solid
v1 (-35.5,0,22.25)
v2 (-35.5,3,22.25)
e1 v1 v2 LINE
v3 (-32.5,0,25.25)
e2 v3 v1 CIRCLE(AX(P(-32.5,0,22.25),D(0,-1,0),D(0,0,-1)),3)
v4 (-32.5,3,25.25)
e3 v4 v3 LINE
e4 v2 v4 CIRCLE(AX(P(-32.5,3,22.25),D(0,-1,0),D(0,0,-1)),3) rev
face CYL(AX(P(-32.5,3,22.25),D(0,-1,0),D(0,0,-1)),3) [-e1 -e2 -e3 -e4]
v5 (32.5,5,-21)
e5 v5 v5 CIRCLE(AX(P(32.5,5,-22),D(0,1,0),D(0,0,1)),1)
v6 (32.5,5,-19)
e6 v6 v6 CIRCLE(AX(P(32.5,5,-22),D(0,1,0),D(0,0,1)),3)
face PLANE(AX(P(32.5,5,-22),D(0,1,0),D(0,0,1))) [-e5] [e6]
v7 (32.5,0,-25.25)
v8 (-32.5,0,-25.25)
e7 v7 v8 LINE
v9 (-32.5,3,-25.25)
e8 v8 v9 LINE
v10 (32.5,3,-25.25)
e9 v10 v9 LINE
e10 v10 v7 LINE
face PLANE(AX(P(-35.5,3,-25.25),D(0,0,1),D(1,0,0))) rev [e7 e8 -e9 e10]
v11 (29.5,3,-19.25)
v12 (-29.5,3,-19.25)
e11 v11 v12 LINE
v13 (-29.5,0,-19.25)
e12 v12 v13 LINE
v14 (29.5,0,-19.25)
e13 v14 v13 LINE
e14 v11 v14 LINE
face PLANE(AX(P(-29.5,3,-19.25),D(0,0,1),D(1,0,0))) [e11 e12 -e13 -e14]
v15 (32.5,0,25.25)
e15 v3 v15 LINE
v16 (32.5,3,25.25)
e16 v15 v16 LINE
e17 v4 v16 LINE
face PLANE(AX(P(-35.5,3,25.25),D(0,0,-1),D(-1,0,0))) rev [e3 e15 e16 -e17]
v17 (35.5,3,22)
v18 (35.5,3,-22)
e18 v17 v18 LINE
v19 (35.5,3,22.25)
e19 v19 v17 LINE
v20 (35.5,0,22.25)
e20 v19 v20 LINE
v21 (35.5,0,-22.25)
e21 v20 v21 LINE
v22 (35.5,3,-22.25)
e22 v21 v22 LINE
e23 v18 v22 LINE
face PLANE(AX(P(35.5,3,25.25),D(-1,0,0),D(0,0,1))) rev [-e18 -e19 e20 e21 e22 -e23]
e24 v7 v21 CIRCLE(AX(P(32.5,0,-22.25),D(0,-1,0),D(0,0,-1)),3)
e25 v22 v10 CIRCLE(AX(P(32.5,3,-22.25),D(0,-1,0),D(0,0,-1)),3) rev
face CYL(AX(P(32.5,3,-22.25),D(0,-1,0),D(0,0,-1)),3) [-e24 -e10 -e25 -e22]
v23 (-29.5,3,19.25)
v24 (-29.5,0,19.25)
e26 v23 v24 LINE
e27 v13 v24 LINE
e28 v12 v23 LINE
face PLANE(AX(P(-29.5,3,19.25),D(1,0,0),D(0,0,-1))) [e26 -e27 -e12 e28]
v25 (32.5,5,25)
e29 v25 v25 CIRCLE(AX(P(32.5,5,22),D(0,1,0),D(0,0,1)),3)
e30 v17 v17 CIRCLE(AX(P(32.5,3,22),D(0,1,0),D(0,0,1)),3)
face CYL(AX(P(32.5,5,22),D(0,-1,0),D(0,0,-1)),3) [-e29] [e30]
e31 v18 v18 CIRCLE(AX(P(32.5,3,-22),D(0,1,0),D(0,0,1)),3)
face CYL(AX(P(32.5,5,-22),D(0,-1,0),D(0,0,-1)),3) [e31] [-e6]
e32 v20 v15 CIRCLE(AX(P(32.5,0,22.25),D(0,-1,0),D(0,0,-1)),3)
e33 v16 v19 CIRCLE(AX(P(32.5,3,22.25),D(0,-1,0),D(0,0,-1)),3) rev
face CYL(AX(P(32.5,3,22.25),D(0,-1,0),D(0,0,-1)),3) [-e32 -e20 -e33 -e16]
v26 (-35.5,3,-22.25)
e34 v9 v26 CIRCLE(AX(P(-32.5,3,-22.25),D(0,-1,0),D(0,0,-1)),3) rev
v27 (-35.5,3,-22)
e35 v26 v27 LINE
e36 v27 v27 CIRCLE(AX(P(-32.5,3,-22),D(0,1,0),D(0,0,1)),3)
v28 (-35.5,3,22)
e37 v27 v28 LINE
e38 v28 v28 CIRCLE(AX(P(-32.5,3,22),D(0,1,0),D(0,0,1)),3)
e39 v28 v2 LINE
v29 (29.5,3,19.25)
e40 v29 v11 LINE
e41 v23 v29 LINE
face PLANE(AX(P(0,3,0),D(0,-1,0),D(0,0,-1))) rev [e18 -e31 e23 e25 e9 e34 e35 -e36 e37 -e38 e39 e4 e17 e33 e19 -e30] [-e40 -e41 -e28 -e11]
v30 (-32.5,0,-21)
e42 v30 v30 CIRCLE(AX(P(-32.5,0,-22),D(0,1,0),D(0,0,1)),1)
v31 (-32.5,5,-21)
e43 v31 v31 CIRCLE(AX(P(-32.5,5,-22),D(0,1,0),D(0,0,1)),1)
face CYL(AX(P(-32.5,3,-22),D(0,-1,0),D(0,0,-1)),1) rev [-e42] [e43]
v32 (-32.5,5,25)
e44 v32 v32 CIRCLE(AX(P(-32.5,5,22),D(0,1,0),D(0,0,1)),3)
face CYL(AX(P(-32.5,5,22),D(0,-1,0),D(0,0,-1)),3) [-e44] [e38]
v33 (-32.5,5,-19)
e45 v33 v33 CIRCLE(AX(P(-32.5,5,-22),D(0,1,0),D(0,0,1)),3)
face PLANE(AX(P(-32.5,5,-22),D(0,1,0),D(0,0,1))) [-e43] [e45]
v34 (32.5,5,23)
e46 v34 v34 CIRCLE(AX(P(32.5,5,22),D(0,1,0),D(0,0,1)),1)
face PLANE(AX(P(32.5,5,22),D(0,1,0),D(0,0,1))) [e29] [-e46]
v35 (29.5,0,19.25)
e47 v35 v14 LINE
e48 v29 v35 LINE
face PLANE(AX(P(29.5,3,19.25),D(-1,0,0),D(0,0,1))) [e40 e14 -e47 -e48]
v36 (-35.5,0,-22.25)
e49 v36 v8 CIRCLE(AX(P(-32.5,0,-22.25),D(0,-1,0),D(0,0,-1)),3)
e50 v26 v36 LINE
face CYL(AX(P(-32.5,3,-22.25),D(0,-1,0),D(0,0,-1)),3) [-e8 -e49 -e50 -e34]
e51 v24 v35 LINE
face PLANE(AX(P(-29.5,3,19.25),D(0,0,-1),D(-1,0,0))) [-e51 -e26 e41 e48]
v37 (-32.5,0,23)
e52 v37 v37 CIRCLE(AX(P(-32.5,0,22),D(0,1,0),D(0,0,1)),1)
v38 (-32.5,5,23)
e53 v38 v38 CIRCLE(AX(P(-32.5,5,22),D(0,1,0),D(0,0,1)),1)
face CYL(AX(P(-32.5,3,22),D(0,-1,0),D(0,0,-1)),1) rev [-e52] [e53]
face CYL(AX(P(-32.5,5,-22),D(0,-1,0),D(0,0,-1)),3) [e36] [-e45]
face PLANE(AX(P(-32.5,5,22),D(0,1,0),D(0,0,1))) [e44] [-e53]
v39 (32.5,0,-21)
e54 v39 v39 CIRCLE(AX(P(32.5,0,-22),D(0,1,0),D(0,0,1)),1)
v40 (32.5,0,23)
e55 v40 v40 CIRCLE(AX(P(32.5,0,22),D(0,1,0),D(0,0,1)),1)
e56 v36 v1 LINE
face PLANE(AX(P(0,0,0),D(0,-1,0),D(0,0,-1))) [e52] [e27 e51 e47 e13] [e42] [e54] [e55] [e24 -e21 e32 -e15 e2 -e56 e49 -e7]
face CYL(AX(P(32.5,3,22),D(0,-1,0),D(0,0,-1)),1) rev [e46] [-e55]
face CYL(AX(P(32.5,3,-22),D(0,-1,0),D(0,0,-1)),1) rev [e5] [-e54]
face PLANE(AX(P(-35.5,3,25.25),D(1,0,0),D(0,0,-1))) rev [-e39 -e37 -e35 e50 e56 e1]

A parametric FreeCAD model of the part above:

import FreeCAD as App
import Part
import Sketcher

V = App.Vector


def edges_at(feature, points):
    """Names of the edges that pass closest to the given points."""
    edges = feature.Shape.Edges
    near = lambda p: min(range(len(edges)), key=lambda i: edges[i].distToShape(Part.Vertex(*p))[0])
    return sorted({f"Edge{near(p) + 1}" for p in points})

doc = App.newDocument("Part")
body = doc.addObject("PartDesign::Body", "Body")

# Sketch on XZ plane
sketch1 = body.newObject("Sketcher::SketchObject", "Sketch")
sketch1.AttachmentSupport = (doc.getObject("XZ_Plane"), [""])
sketch1.MapMode = "FlatFace"
sketch1.addGeometry([
    Part.LineSegment(V(-35.5, -25.25, 0), V(-35.5, 25.25, 0)),  # 0
    Part.LineSegment(V(-35.5, 25.25, 0), V(35.5, 25.25, 0)),  # 1
    Part.LineSegment(V(35.5, 25.25, 0), V(35.5, -25.25, 0)),  # 2
    Part.LineSegment(V(35.5, -25.25, 0), V(-35.5, -25.25, 0)),  # 3
    Part.Circle(V(-32.5, 22, 0), V(0, 0, 1), 1),  # 4
    Part.Circle(V(32.5, 22, 0), V(0, 0, 1), 1),  # 5
    Part.Circle(V(-32.5, -22, 0), V(0, 0, 1), 1),  # 6
    Part.LineSegment(V(29.5, 19.25, 0), V(-29.5, 19.25, 0)),  # 7
    Part.LineSegment(V(-29.5, 19.25, 0), V(-29.5, -19.25, 0)),  # 8
    Part.LineSegment(V(-29.5, -19.25, 0), V(29.5, -19.25, 0)),  # 9
    Part.LineSegment(V(29.5, -19.25, 0), V(29.5, 19.25, 0)),  # 10
    Part.Circle(V(32.5, -22, 0), V(0, 0, 1), 1),  # 11
], False)
sketch1.addConstraint([
    Sketcher.Constraint("Coincident", 0, 2, 1, 1),
    Sketcher.Constraint("Coincident", 1, 2, 2, 1),
    Sketcher.Constraint("Coincident", 2, 2, 3, 1),
    Sketcher.Constraint("Coincident", 3, 2, 0, 1),
    Sketcher.Constraint("Coincident", 7, 2, 8, 1),
    Sketcher.Constraint("Coincident", 8, 2, 9, 1),
    Sketcher.Constraint("Coincident", 9, 2, 10, 1),
    Sketcher.Constraint("Coincident", 10, 2, 7, 1),
    Sketcher.Constraint("Vertical", 0),
    Sketcher.Constraint("Horizontal", 1),
    Sketcher.Constraint("Vertical", 2),
    Sketcher.Constraint("Horizontal", 3),
    Sketcher.Constraint("Horizontal", 7),
    Sketcher.Constraint("Vertical", 8),
    Sketcher.Constraint("Horizontal", 9),
    Sketcher.Constraint("Vertical", 10),
    Sketcher.Constraint("Equal", 4, 5),
    Sketcher.Constraint("Equal", 5, 6),
    Sketcher.Constraint("Equal", 6, 11),
    Sketcher.Constraint("Symmetric", 5, 3, 6, 3, -1, 1),
    Sketcher.Constraint("Symmetric", 4, 3, 11, 3, -1, 1),
    Sketcher.Constraint("Symmetric", 0, 2, 2, 2, -1, 1),
    Sketcher.Constraint("Symmetric", 7, 2, 9, 2, -1, 1),
    Sketcher.Constraint("Symmetric", 4, 3, 5, 3, -2),
    Sketcher.Constraint("Diameter", 4, 2.0),
    Sketcher.Constraint("DistanceX", 1, 1, 1, 2, 71.0),
    Sketcher.Constraint("DistanceX", 7, 2, 7, 1, 59.0),
    Sketcher.Constraint("DistanceY", 0, 1, 0, 2, 50.5),
    Sketcher.Constraint("DistanceY", 8, 2, 8, 1, 38.5),
    Sketcher.Constraint("DistanceY", -1, 1, 4, 3, 22.0),
    Sketcher.Constraint("DistanceX", 4, 3, 5, 3, 65.0),
])
pad1 = body.newObject("PartDesign::Pad", "Pad")
pad1.Profile = sketch1
pad1.Length = 3
pad1.Reversed = True

# Sketch on XZ plane
sketch2 = body.newObject("Sketcher::SketchObject", "Sketch001")
sketch2.AttachmentSupport = (doc.getObject("XZ_Plane"), [""])
sketch2.MapMode = "FlatFace"
sketch2.AttachmentOffset = App.Placement(V(0, 0, -3), App.Rotation())
sketch2.addGeometry([
    Part.Circle(V(32.5, -22, 0), V(0, 0, 1), 3),  # 0
    Part.Circle(V(32.5, -22, 0), V(0, 0, 1), 1),  # 1
    Part.Circle(V(32.5, 22, 0), V(0, 0, 1), 3),  # 2
    Part.Circle(V(32.5, 22, 0), V(0, 0, 1), 1),  # 3
    Part.Circle(V(-32.5, 22, 0), V(0, 0, 1), 3),  # 4
    Part.Circle(V(-32.5, 22, 0), V(0, 0, 1), 1),  # 5
    Part.Circle(V(-32.5, -22, 0), V(0, 0, 1), 3),  # 6
    Part.Circle(V(-32.5, -22, 0), V(0, 0, 1), 1),  # 7
], False)
sketch2.addConstraint([
    Sketcher.Constraint("Coincident", 1, 3, 0, 3),
    Sketcher.Constraint("Coincident", 3, 3, 2, 3),
    Sketcher.Constraint("Coincident", 5, 3, 4, 3),
    Sketcher.Constraint("Coincident", 7, 3, 6, 3),
    Sketcher.Constraint("Equal", 0, 2),
    Sketcher.Constraint("Equal", 1, 3),
    Sketcher.Constraint("Equal", 2, 4),
    Sketcher.Constraint("Equal", 3, 5),
    Sketcher.Constraint("Equal", 4, 6),
    Sketcher.Constraint("Equal", 5, 7),
    Sketcher.Constraint("Symmetric", 0, 3, 4, 3, -1, 1),
    Sketcher.Constraint("Symmetric", 2, 3, 6, 3, -1, 1),
    Sketcher.Constraint("Symmetric", 2, 3, 4, 3, -2),
    Sketcher.Constraint("Diameter", 0, 6.0),
    Sketcher.Constraint("Diameter", 1, 2.0),
    Sketcher.Constraint("DistanceY", 0, 3, -1, 1, 22.0),
    Sketcher.Constraint("DistanceX", 4, 3, 2, 3, 65.0),
])
pad2 = body.newObject("PartDesign::Pad", "Pad001")
pad2.Profile = sketch2
pad2.Length = 2
pad2.Reversed = True
doc.recompute()

fillet = body.newObject("PartDesign::Fillet", "Fillet")
fillet.Base = (pad2, edges_at(pad2, [
    (35.5, 1.5, 25.25),
    (-35.5, 1.5, 25.25),
    (-35.5, 1.5, -25.25),
    (35.5, 1.5, -25.25),
]))
fillet.Radius = 3

doc.recompute()
